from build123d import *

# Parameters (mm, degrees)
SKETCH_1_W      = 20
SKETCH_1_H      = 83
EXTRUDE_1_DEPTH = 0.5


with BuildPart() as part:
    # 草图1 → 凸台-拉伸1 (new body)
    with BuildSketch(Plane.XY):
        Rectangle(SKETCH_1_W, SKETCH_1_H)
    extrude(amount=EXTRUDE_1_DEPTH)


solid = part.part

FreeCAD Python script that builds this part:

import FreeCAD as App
import Part
import Sketcher
Q = App.Units.Quantity


def add_polygon(sketch, points):
    """Adds a closed chain of lines whose ends are joined by coincident constraints."""
    first, n = sketch.GeometryCount, len(points)
    for a, b in zip(points, points[1:] + points[:1]):
        sketch.addGeometry(Part.LineSegment(App.Vector(*a, 0), App.Vector(*b, 0)), False)
    for i in range(n):
        sketch.addConstraint(Sketcher.Constraint("Coincident", first + i, 2, first + (i + 1) % n, 1))

doc = App.newDocument("Part")
body = doc.addObject("PartDesign::Body", "Body")

# Sketch on XY plane
sketch1 = body.newObject("Sketcher::SketchObject", "Sketch")
sketch1.AttachmentSupport = (doc.getObject("XY_Plane"), [""])
sketch1.MapMode = "FlatFace"
add_polygon(sketch1, [(-10, 42), (-10, -42), (10, -42), (10, 42)])  # lines 0-3
sketch1.addConstraint([
    Sketcher.Constraint("Vertical", 0),
    Sketcher.Constraint("Horizontal", 1),
    Sketcher.Constraint("Vertical", 2),
    Sketcher.Constraint("Horizontal", 3),
    Sketcher.Constraint("Symmetric", 0, 2, 2, 2, -1, 1),
    Sketcher.Constraint("DistanceX", 1, 1, 1, 2, Q("20 mm")),
    Sketcher.Constraint("DistanceY", 0, 2, 0, 1, Q("83 mm")),
])
pad1 = body.newObject("PartDesign::Pad", "Pad")
pad1.Profile = sketch1
pad1.Length = 0.5

doc.recompute()
